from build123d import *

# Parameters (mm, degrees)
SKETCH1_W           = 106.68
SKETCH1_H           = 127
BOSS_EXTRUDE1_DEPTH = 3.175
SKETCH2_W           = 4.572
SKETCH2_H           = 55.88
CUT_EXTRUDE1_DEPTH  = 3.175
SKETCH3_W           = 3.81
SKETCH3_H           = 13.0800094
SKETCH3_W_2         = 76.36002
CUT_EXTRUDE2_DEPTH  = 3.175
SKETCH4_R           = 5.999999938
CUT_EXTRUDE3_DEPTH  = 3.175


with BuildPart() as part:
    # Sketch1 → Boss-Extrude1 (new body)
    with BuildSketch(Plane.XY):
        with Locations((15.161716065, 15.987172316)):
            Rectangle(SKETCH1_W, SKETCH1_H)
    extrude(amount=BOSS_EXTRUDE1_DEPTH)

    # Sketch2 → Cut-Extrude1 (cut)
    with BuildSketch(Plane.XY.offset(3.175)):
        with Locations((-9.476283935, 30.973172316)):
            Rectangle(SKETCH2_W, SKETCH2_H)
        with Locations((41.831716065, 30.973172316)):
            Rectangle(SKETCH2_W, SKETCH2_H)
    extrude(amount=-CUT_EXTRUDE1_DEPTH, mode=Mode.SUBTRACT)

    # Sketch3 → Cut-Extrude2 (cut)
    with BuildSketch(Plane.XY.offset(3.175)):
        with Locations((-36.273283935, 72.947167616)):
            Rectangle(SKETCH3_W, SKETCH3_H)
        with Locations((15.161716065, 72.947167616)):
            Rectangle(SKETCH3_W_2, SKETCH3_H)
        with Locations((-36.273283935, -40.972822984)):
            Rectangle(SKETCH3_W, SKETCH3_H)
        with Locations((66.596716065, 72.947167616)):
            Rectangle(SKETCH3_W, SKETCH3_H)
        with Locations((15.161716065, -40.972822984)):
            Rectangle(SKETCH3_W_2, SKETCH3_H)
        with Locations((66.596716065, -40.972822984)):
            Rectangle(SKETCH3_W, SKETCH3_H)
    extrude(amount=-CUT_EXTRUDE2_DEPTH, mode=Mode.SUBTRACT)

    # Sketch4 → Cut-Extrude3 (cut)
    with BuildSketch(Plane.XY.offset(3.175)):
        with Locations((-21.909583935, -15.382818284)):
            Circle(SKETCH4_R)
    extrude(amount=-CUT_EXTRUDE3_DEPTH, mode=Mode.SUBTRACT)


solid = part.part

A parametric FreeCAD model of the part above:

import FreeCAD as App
import Part
import Sketcher
from FreeCAD import Vector
Q = App.Units.Quantity


def add_polygon(sketch, points):
    """Adds a closed chain of lines whose ends are joined by coincident constraints."""
    first, n = sketch.GeometryCount, len(points)
    for a, b in zip(points, points[1:] + points[:1]):
        sketch.addGeometry(Part.LineSegment(App.Vector(*a, 0), App.Vector(*b, 0)), False)
    for i in range(n):
        sketch.addConstraint(Sketcher.Constraint("Coincident", first + i, 2, first + (i + 1) % n, 1))

doc = App.newDocument("Part")
params = doc.addObject("Spreadsheet::Sheet", "Params")
for row, (alias, value) in enumerate([
    ("sketch1_height", "5 in"),
    ("sketch1_width", "4.2 in"),
    ("pad1_length", "0.125 in"),
    ("sketch2_height", "2.2 in"),
    ("sketch2_width", "0.18 in"),
    ("pocket1_length", "0.125 in"),
    ("sketch3_width", "0.15 in"),
    ("pocket2_length", "0.125 in"),
    ("pocket3_length", "0.125 in"),
], start=1):
    params.set(f"A{row}", alias)
    params.set(f"B{row}", "=" + value)
    params.setAlias(f"B{row}", alias)

body = doc.addObject("PartDesign::Body", "Body")

# Sketch on XY plane
sketch1 = doc.addObject("Sketcher::SketchObject", "Sketch")
body.addObject(sketch1)
sketch1.AttachmentSupport = (doc.XY_Plane, [""])
sketch1.MapMode = "FlatFace"
add_polygon(sketch1, [(-38, 79), (-38, -48), (69, -48), (69, 79)])  # lines 0-3
sketch1.addConstraint([
    Sketcher.Constraint("Vertical", 0),
    Sketcher.Constraint("Horizontal", 1),
    Sketcher.Constraint("Vertical", 2),
    Sketcher.Constraint("Horizontal", 3),
    Sketcher.Constraint("DistanceY", 0, 2, 0, 1, Q("5 in")),
    Sketcher.Constraint("DistanceX", 1, 1, 1, 2, Q("4.2 in")),
    Sketcher.Constraint("DistanceX", 0, 2, -1, 1, Q("38.178284 mm")),
    Sketcher.Constraint("DistanceY", 0, 2, -1, 1, Q("47.512828 mm")),
])
sketch1.setExpression("Constraints[8]", "Params.sketch1_height")
sketch1.setExpression("Constraints[9]", "Params.sketch1_width")
pad1 = doc.addObject("PartDesign::Pad", "Pad")
body.addObject(pad1)
pad1.Profile = sketch1
pad1.setExpression("Length", "Params.pad1_length")

# Sketch on XY plane
sketch2 = doc.addObject("Sketcher::SketchObject", "Sketch001")
body.addObject(sketch2)
sketch2.AttachmentSupport = (doc.XY_Plane, [""])
sketch2.MapMode = "FlatFace"
sketch2.AttachmentOffset = App.Placement(Vector(0, 0, 0.125 * 25.4), App.Rotation())
add_polygon(sketch2, [(-11.8, 58.9), (-11.8, 3), (-7.2, 3), (-7.2, 58.9)])  # lines 0-3
add_polygon(sketch2, [(39.5, 58.9), (39.5, 3), (44.1, 3), (44.1, 58.9)])  # lines 4-7
sketch2.addConstraint([
    Sketcher.Constraint("Vertical", 0),
    Sketcher.Constraint("Horizontal", 1),
    Sketcher.Constraint("Vertical", 2),
    Sketcher.Constraint("Horizontal", 3),
    Sketcher.Constraint("Vertical", 4),
    Sketcher.Constraint("Horizontal", 5),
    Sketcher.Constraint("Vertical", 6),
    Sketcher.Constraint("Horizontal", 7),
    Sketcher.Constraint("Horizontal", 1, 2, 4, 2),
    Sketcher.Constraint("Horizontal", 3, 2, 6, 2),
    Sketcher.Constraint("Equal", 3, 5),
    Sketcher.Constraint("DistanceY", 0, 2, 0, 1, Q("2.2 in")),
    Sketcher.Constraint("DistanceX", 1, 1, 1, 2, Q("0.18 in")),
    Sketcher.Constraint("DistanceX", 0, 2, 5, 2, Q("2.2 in")),
    Sketcher.Constraint("DistanceX", 0, 2, -1, 1, Q("11.762284 mm")),
    Sketcher.Constraint("DistanceY", -1, 1, 0, 2, Q("3.033172 mm")),
])
sketch2.setExpression("Constraints[19]", "Params.sketch2_height")
sketch2.setExpression("Constraints[20]", "Params.sketch2_width")
pocket1 = doc.addObject("PartDesign::Pocket", "Pocket")
body.addObject(pocket1)
pocket1.Profile = sketch2
pocket1.setExpression("Length", "Params.pocket1_length")

# Sketch on XY plane
sketch3 = doc.addObject("Sketcher::SketchObject", "Sketch002")
body.addObject(sketch3)
sketch3.AttachmentSupport = (doc.XY_Plane, [""])
sketch3.MapMode = "FlatFace"
sketch3.AttachmentOffset = App.Placement(Vector(0, 0, 0.125 * 25.4), App.Rotation())
add_polygon(sketch3, [(-38.2, 79.5), (-38.2, 66.4), (-34.4, 66.4), (-34.4, 79.5)])  # lines 0-3
add_polygon(sketch3, [(-23, 79.5), (-23, 66.4), (53.3, 66.4), (53.3, 79.5)])  # lines 4-7
add_polygon(sketch3, [(-38.2, -34.4), (-38.2, -47.5), (-34.4, -47.5), (-34.4, -34.4)])  # lines 8-11
add_polygon(sketch3, [(64.7, 79.5), (64.7, 66.4), (68.5, 66.4), (68.5, 79.5)])  # lines 12-15
add_polygon(sketch3, [(-23, -34.4), (-23, -47.5), (53.3, -47.5), (53.3, -34.4)])  # lines 16-19
add_polygon(sketch3, [(64.7, -34.4), (64.7, -47.5), (68.5, -47.5), (68.5, -34.4)])  # lines 20-23
sketch3.addConstraint([
    Sketcher.Constraint("Vertical", 0),
    Sketcher.Constraint("Horizontal", 1),
    Sketcher.Constraint("Vertical", 2),
    Sketcher.Constraint("Horizontal", 3),
    Sketcher.Constraint("Vertical", 4),
    Sketcher.Constraint("Horizontal", 5),
    Sketcher.Constraint("Vertical", 6),
    Sketcher.Constraint("Horizontal", 7),
    Sketcher.Constraint("Vertical", 8),
    Sketcher.Constraint("Horizontal", 9),
    Sketcher.Constraint("Vertical", 10),
    Sketcher.Constraint("Horizontal", 11),
    Sketcher.Constraint("Vertical", 12),
    Sketcher.Constraint("Horizontal", 13),
    Sketcher.Constraint("Vertical", 14),
    Sketcher.Constraint("Horizontal", 15),
    Sketcher.Constraint("Vertical", 16),
    Sketcher.Constraint("Horizontal", 17),
    Sketcher.Constraint("Vertical", 18),
    Sketcher.Constraint("Horizontal", 19),
    Sketcher.Constraint("Vertical", 20),
    Sketcher.Constraint("Horizontal", 21),
    Sketcher.Constraint("Vertical", 22),
    Sketcher.Constraint("Horizontal", 23),
    Sketcher.Constraint("Horizontal", 1, 2, 4, 2),
    Sketcher.Constraint("Horizontal", 3, 2, 6, 2),
    Sketcher.Constraint("Horizontal", 5, 2, 12, 2),
    Sketcher.Constraint("Horizontal", 7, 2, 14, 2),
    Sketcher.Constraint("Horizontal", 9, 2, 16, 2),
    Sketcher.Constraint("Horizontal", 11, 2, 18, 2),
    Sketcher.Constraint("Horizontal", 17, 2, 20, 2),
    Sketcher.Constraint("Horizontal", 19, 2, 22, 2),
    Sketcher.Constraint("Vertical", 3, 2, 8, 2),
    Sketcher.Constraint("Vertical", 2, 2, 9, 2),
    Sketcher.Constraint("Vertical", 7, 2, 16, 2),
    Sketcher.Constraint("Vertical", 6, 2, 17, 2),
    Sketcher.Constraint("Vertical", 15, 2, 20, 2),
    Sketcher.Constraint("Vertical", 14, 2, 21, 2),
    Sketcher.Constraint("Equal", 11, 13),
    Sketcher.Constraint("Equal", 6, 8),
    Sketcher.Constraint("DistanceY", 8, 2, 3, 2, Q("5 in")),
    Sketcher.Constraint("DistanceX", 1, 1, 1, 2, Q("0.15 in")),
    Sketcher.Constraint("DistanceX", 1, 2, 12, 2, Q("3.9 in")),
    Sketcher.Constraint("DistanceX", 5, 1, 5, 2, Q("3.0063 in")),
    Sketcher.Constraint("DistanceY", 0, 2, 0, 1, Q("13.080009 mm")),
    Sketcher.Constraint("DistanceY", 10, 2, -1, 1, Q("34.432818 mm")),
    Sketcher.Constraint("DistanceX", 1, 2, 4, 2, Q("11.34999 mm")),
    Sketcher.Constraint("DistanceX", 0, 2, -1, 1, Q("38.178284 mm")),
])
sketch3.setExpression("Constraints[65]", "Params.sketch3_width")
pocket2 = doc.addObject("PartDesign::Pocket", "Pocket001")
body.addObject(pocket2)
pocket2.Profile = sketch3
pocket2.setExpression("Length", "Params.pocket2_length")

# Sketch on XY plane
sketch4 = doc.addObject("Sketcher::SketchObject", "Sketch003")
body.addObject(sketch4)
sketch4.AttachmentSupport = (doc.XY_Plane, [""])
sketch4.MapMode = "FlatFace"
sketch4.AttachmentOffset = App.Placement(Vector(0, 0, 0.125 * 25.4), App.Rotation())
sketch4.addGeometry(Part.Circle(Vector(-22, -15, 0), Vector(0, 0, 1), 6), False)
sketch4.addConstraint([
    Sketcher.Constraint("Diameter", 0, Q("12 mm")),
    Sketcher.Constraint("DistanceY", 0, 3, -1, 1, Q("15.382818 mm")),
    Sketcher.Constraint("DistanceX", 0, 3, -1, 1, Q("21.909584 mm")),
])
pocket3 = doc.addObject("PartDesign::Pocket", "Pocket002")
body.addObject(pocket3)
pocket3.Profile = sketch4
pocket3.setExpression("Length", "Params.pocket3_length")

doc.recompute()
